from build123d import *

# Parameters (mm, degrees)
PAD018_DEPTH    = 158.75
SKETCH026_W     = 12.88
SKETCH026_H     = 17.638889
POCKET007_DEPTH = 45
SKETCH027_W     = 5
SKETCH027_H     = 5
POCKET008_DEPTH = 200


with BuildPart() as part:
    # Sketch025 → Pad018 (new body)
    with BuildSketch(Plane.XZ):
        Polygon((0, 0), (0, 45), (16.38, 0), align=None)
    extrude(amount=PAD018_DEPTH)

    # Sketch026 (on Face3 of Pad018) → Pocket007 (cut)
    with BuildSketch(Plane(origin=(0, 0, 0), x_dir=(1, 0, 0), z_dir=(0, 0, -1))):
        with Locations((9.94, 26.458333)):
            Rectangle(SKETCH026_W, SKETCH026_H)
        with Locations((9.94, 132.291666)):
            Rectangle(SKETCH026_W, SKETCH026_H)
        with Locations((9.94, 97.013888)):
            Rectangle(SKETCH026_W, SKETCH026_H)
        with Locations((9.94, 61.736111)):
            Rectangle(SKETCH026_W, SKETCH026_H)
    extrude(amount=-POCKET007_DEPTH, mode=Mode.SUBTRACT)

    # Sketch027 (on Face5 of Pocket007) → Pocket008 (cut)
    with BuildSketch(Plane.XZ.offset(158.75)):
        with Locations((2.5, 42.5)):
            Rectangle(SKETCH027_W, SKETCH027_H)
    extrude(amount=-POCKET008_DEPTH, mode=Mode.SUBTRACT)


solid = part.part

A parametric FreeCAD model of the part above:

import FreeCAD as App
import Part
import Sketcher

V = App.Vector
Q = App.Units.Quantity

doc = App.newDocument("Part")
body = doc.addObject("PartDesign::Body", "Body")

sketch1 = doc.addObject("Sketcher::SketchObject", "Sketch")
body.addObject(sketch1)
sketch1.AttachmentSupport = (doc.XZ_Plane, [""])
sketch1.MapMode = "FlatFace"
sketch1.addGeometry(Part.LineSegment(V(0, 45, 0), V(0, 0, 0)), False)
sketch1.addGeometry(Part.LineSegment(V(0, 0, 0), V(16, 0, 0)), False)
sketch1.addGeometry(Part.LineSegment(V(16, 0, 0), V(0, 45, 0)), False)
sketch1.addConstraint(Sketcher.Constraint("Coincident", 0, 2, 1, 1))
sketch1.addConstraint(Sketcher.Constraint("Coincident", 1, 2, 2, 1))
sketch1.addConstraint(Sketcher.Constraint("Coincident", 2, 2, 0, 1))
sketch1.addConstraint(Sketcher.Constraint("Vertical", 0))
sketch1.addConstraint(Sketcher.Constraint("Horizontal", 1))
sketch1.addConstraint(Sketcher.Constraint("Coincident", 0, 2, -1, 1))
sketch1.addConstraint(Sketcher.Constraint("DistanceY", 0, 2, 0, 1, Q("45 mm")))
sketch1.addConstraint(Sketcher.Constraint("DistanceX", 1, 1, 1, 2, Q("16.38 mm")))
pad1 = doc.addObject("PartDesign::Pad", "Pad")
body.addObject(pad1)
pad1.Profile = sketch1
pad1.Length = 158.75

sketch2 = doc.addObject("Sketcher::SketchObject", "Sketch001")
body.addObject(sketch2)
sketch2.AttachmentSupport = (doc.XY_Plane, [""])
sketch2.MapMode = "FlatFace"
sketch2.addGeometry(Part.LineSegment(V(4, -35, 0), V(4, -18, 0)), False)
sketch2.addGeometry(Part.LineSegment(V(4, -18, 0), V(16, -18, 0)), False)
sketch2.addGeometry(Part.LineSegment(V(16, -18, 0), V(16, -35, 0)), False)
sketch2.addGeometry(Part.LineSegment(V(16, -35, 0), V(4, -35, 0)), False)
sketch2.addGeometry(Part.LineSegment(V(4, -141, 0), V(4, -123, 0)), False)
sketch2.addGeometry(Part.LineSegment(V(4, -123, 0), V(16, -123, 0)), False)
sketch2.addGeometry(Part.LineSegment(V(16, -123, 0), V(16, -141, 0)), False)
sketch2.addGeometry(Part.LineSegment(V(16, -141, 0), V(4, -141, 0)), False)
sketch2.addGeometry(Part.LineSegment(V(4, -106, 0), V(4, -88, 0)), False)
sketch2.addGeometry(Part.LineSegment(V(4, -88, 0), V(16, -88, 0)), False)
sketch2.addGeometry(Part.LineSegment(V(16, -88, 0), V(16, -106, 0)), False)
sketch2.addGeometry(Part.LineSegment(V(16, -106, 0), V(4, -106, 0)), False)
sketch2.addGeometry(Part.LineSegment(V(4, -71, 0), V(4, -53, 0)), False)
sketch2.addGeometry(Part.LineSegment(V(4, -53, 0), V(16, -53, 0)), False)
sketch2.addGeometry(Part.LineSegment(V(16, -53, 0), V(16, -71, 0)), False)
sketch2.addGeometry(Part.LineSegment(V(16, -71, 0), V(4, -71, 0)), False)
sketch2.addConstraint(Sketcher.Constraint("Coincident", 0, 2, 1, 1))
sketch2.addConstraint(Sketcher.Constraint("Coincident", 1, 2, 2, 1))
sketch2.addConstraint(Sketcher.Constraint("Coincident", 2, 2, 3, 1))
sketch2.addConstraint(Sketcher.Constraint("Coincident", 3, 2, 0, 1))
sketch2.addConstraint(Sketcher.Constraint("Coincident", 4, 2, 5, 1))
sketch2.addConstraint(Sketcher.Constraint("Coincident", 5, 2, 6, 1))
sketch2.addConstraint(Sketcher.Constraint("Coincident", 6, 2, 7, 1))
sketch2.addConstraint(Sketcher.Constraint("Coincident", 7, 2, 4, 1))
sketch2.addConstraint(Sketcher.Constraint("Coincident", 8, 2, 9, 1))
sketch2.addConstraint(Sketcher.Constraint("Coincident", 9, 2, 10, 1))
sketch2.addConstraint(Sketcher.Constraint("Coincident", 10, 2, 11, 1))
sketch2.addConstraint(Sketcher.Constraint("Coincident", 11, 2, 8, 1))
sketch2.addConstraint(Sketcher.Constraint("Coincident", 12, 2, 13, 1))
sketch2.addConstraint(Sketcher.Constraint("Coincident", 13, 2, 14, 1))
sketch2.addConstraint(Sketcher.Constraint("Coincident", 14, 2, 15, 1))
sketch2.addConstraint(Sketcher.Constraint("Coincident", 15, 2, 12, 1))
sketch2.addConstraint(Sketcher.Constraint("Vertical", 0))
sketch2.addConstraint(Sketcher.Constraint("Horizontal", 1))
sketch2.addConstraint(Sketcher.Constraint("Vertical", 2))
sketch2.addConstraint(Sketcher.Constraint("Horizontal", 3))
sketch2.addConstraint(Sketcher.Constraint("Vertical", 4))
sketch2.addConstraint(Sketcher.Constraint("Horizontal", 5))
sketch2.addConstraint(Sketcher.Constraint("Vertical", 6))
sketch2.addConstraint(Sketcher.Constraint("Horizontal", 7))
sketch2.addConstraint(Sketcher.Constraint("Vertical", 8))
sketch2.addConstraint(Sketcher.Constraint("Horizontal", 9))
sketch2.addConstraint(Sketcher.Constraint("Vertical", 10))
sketch2.addConstraint(Sketcher.Constraint("Horizontal", 11))
sketch2.addConstraint(Sketcher.Constraint("Vertical", 12))
sketch2.addConstraint(Sketcher.Constraint("Horizontal", 13))
sketch2.addConstraint(Sketcher.Constraint("Vertical", 14))
sketch2.addConstraint(Sketcher.Constraint("Horizontal", 15))
sketch2.addConstraint(Sketcher.Constraint("Vertical", 3, 2, 4, 2))
sketch2.addConstraint(Sketcher.Constraint("Vertical", 2, 2, 5, 2))
sketch2.addConstraint(Sketcher.Constraint("Vertical", 7, 2, 8, 2))
sketch2.addConstraint(Sketcher.Constraint("Vertical", 6, 2, 9, 2))
sketch2.addConstraint(Sketcher.Constraint("Vertical", 11, 2, 12, 2))
sketch2.addConstraint(Sketcher.Constraint("Vertical", 10, 2, 13, 2))
sketch2.addConstraint(Sketcher.Constraint("Equal", 2, 4))
sketch2.addConstraint(Sketcher.Constraint("Equal", 6, 8))
sketch2.addConstraint(Sketcher.Constraint("Equal", 10, 12))
sketch2.addConstraint(Sketcher.Constraint("DistanceX", 1, 1, 1, 2, Q("12.88 mm")))
sketch2.addConstraint(Sketcher.Constraint("DistanceX", -1, 1, 0, 2, Q("3.5 mm")))
sketch2.addConstraint(Sketcher.Constraint("DistanceY", 0, 1, 0, 2, Q("17.638889 mm")))
sketch2.addConstraint(Sketcher.Constraint("DistanceY", 0, 2, -1, 1, Q("17.638889 mm")))
sketch2.addConstraint(Sketcher.Constraint("DistanceY", 4, 2, -1, 1, Q("123.472222 mm")))
sketch2.addConstraint(Sketcher.Constraint("DistanceY", 5, 2, 10, 2, Q("17.638889 mm")))
sketch2.addConstraint(Sketcher.Constraint("DistanceY", 12, 2, 3, 2, Q("17.638889 mm")))
pocket1 = doc.addObject("PartDesign::Pocket", "Pocket")
body.addObject(pocket1)
pocket1.Profile = sketch2
pocket1.Length = 45
pocket1.Reversed = True

sketch3 = doc.addObject("Sketcher::SketchObject", "Sketch002")
body.addObject(sketch3)
sketch3.AttachmentSupport = (doc.XZ_Plane, [""])
sketch3.MapMode = "FlatFace"
sketch3.AttachmentOffset = App.Placement(V(0, 0, 158.75), App.Rotation())
sketch3.addGeometry(Part.LineSegment(V(0, 45, 0), V(0, 40, 0)), False)
sketch3.addGeometry(Part.LineSegment(V(0, 40, 0), V(5, 40, 0)), False)
sketch3.addGeometry(Part.LineSegment(V(5, 40, 0), V(5, 45, 0)), False)
sketch3.addGeometry(Part.LineSegment(V(5, 45, 0), V(0, 45, 0)), False)
sketch3.addConstraint(Sketcher.Constraint("Coincident", 0, 2, 1, 1))
sketch3.addConstraint(Sketcher.Constraint("Coincident", 1, 2, 2, 1))
sketch3.addConstraint(Sketcher.Constraint("Coincident", 2, 2, 3, 1))
sketch3.addConstraint(Sketcher.Constraint("Coincident", 3, 2, 0, 1))
sketch3.addConstraint(Sketcher.Constraint("Vertical", 0))
sketch3.addConstraint(Sketcher.Constraint("Horizontal", 1))
sketch3.addConstraint(Sketcher.Constraint("Vertical", 2))
sketch3.addConstraint(Sketcher.Constraint("Horizontal", 3))
sketch3.addConstraint(Sketcher.Constraint("PointOnObject", 0, 2, -2))
sketch3.addConstraint(Sketcher.Constraint("Equal", 3, 0))
sketch3.addConstraint(Sketcher.Constraint("DistanceX", 1, 1, 1, 2, Q("5 mm")))
sketch3.addConstraint(Sketcher.Constraint("DistanceY", -1, 1, 0, 2, Q("40 mm")))
pocket2 = doc.addObject("PartDesign::Pocket", "Pocket001")
body.addObject(pocket2)
pocket2.Profile = sketch3
pocket2.Length = 200

doc.recompute()
